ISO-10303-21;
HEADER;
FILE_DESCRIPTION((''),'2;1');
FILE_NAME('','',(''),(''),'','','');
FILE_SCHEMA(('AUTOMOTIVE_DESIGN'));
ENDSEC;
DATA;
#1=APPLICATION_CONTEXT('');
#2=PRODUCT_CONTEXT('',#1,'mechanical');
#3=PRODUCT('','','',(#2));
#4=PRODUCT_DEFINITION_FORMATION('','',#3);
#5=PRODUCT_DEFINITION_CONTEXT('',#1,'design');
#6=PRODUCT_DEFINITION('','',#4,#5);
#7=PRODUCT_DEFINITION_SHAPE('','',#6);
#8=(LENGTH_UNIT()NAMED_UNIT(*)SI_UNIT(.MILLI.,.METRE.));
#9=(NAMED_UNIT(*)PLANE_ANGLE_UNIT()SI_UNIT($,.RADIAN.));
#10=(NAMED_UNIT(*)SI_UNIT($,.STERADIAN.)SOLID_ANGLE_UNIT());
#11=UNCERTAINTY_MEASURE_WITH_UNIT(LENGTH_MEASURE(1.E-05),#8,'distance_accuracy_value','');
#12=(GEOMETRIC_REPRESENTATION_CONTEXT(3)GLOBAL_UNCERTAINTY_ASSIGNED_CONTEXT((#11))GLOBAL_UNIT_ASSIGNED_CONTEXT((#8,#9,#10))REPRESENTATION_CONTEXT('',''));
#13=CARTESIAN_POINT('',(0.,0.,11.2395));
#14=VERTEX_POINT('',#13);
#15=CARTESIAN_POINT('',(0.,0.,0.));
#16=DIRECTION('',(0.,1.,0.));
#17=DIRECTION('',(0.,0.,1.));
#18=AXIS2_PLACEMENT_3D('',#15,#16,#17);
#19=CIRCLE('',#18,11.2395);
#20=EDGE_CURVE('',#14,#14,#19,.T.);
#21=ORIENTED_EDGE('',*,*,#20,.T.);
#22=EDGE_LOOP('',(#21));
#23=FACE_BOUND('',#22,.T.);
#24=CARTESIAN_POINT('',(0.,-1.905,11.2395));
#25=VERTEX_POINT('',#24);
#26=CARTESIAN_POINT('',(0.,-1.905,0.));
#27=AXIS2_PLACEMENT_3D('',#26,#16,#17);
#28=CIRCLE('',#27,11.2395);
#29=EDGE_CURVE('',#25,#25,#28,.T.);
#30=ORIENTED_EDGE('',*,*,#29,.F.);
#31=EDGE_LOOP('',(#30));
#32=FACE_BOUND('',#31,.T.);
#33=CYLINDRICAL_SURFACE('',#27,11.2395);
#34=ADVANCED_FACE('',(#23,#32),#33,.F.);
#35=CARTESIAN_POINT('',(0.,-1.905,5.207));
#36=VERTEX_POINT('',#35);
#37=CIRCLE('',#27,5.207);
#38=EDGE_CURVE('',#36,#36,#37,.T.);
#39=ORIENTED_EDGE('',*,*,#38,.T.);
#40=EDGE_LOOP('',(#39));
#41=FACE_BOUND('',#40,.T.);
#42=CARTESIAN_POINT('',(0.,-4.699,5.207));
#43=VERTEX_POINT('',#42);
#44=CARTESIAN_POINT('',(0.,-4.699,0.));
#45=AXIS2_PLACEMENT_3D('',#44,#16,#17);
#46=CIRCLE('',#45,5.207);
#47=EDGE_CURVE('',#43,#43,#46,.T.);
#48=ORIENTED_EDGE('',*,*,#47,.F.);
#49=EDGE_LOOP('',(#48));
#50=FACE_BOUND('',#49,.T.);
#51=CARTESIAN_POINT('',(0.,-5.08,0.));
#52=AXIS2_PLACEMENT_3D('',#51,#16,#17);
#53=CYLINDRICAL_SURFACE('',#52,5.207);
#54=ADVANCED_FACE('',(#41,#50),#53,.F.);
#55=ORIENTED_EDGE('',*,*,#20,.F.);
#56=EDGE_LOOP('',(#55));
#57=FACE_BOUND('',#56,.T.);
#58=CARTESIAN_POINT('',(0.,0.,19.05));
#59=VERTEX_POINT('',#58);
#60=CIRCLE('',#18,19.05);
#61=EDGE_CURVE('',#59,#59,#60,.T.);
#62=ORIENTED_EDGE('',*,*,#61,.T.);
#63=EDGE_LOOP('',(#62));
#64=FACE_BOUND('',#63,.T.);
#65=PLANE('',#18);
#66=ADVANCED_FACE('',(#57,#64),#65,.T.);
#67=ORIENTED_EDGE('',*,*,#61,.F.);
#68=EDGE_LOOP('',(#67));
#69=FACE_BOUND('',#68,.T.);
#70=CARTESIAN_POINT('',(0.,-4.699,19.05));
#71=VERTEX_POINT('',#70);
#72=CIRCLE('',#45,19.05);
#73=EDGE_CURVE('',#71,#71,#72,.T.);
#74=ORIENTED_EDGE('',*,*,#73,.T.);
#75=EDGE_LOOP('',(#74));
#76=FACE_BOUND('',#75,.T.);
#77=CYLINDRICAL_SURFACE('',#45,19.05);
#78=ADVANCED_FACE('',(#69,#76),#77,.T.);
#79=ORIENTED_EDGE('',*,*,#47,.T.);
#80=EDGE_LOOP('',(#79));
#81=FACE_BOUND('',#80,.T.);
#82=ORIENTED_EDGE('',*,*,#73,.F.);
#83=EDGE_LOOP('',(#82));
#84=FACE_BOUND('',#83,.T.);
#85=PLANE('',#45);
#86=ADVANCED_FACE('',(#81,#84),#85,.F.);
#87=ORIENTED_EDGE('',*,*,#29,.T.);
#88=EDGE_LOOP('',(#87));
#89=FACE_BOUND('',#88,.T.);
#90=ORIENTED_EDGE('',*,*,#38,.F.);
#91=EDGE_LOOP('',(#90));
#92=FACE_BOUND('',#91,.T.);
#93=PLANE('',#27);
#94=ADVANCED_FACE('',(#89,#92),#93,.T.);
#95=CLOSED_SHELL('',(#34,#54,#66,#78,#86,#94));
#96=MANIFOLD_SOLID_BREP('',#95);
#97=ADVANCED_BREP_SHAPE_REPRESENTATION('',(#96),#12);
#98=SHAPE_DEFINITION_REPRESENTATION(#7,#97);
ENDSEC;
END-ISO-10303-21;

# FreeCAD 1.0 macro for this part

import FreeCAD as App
import Part
import Sketcher

V = App.Vector
Q = App.Units.Quantity

doc = App.newDocument("Part")
params = doc.addObject("Spreadsheet::Sheet", "Params")
for row, (alias, value) in enumerate([
    ("sketch1_diameter", "1.5 in"),
    ("pad1_length", "0.185 in"),
    ("sketch2_diameter", "0.885 in"),
    ("pocket1_length", "0.075 in"),
    ("sketch3_diameter", "0.41 in"),
    ("pocket2_length", "0.125 in"),
], start=1):
    params.set(f"A{row}", alias)
    params.set(f"B{row}", "=" + value)
    params.setAlias(f"B{row}", alias)

body = doc.addObject("PartDesign::Body", "Body")

sketch1 = doc.addObject("Sketcher::SketchObject", "Sketch")
body.addObject(sketch1)
sketch1.AttachmentSupport = (doc.XZ_Plane, [""])
sketch1.MapMode = "FlatFace"
sketch1.addGeometry(Part.Circle(V(0, 0, 0), V(0, 0, 1), 19), False)
sketch1.addConstraint(Sketcher.Constraint("Coincident", 0, 3, -1, 1))
sketch1.addConstraint(Sketcher.Constraint("Diameter", 0, Q("1.5 in")))
sketch1.setExpression("Constraints[1]", "Params.sketch1_diameter")
pad1 = doc.addObject("PartDesign::Pad", "Pad")
body.addObject(pad1)
pad1.Profile = sketch1
pad1.setExpression("Length", "Params.pad1_length")

sketch2 = doc.addObject("Sketcher::SketchObject", "Sketch001")
body.addObject(sketch2)
sketch2.AttachmentSupport = (doc.XZ_Plane, [""])
sketch2.MapMode = "FlatFace"
sketch2.addGeometry(Part.Circle(V(0, 0, 0), V(0, 0, 1), 11), False)
sketch2.addConstraint(Sketcher.Constraint("Coincident", 0, 3, -1, 1))
sketch2.addConstraint(Sketcher.Constraint("Diameter", 0, Q("0.885 in")))
sketch2.setExpression("Constraints[1]", "Params.sketch2_diameter")
pocket1 = doc.addObject("PartDesign::Pocket", "Pocket")
body.addObject(pocket1)
pocket1.Profile = sketch2
pocket1.setExpression("Length", "Params.pocket1_length")
pocket1.Reversed = True

sketch3 = doc.addObject("Sketcher::SketchObject", "Sketch002")
body.addObject(sketch3)
sketch3.AttachmentSupport = (doc.XZ_Plane, [""])
sketch3.MapMode = "FlatFace"
sketch3.AttachmentOffset = App.Placement(V(0, 0, 0.075 * 25.4), App.Rotation())
sketch3.addGeometry(Part.Circle(V(0, 0, 0), V(0, 0, 1), 5), False)
sketch3.addConstraint(Sketcher.Constraint("Coincident", 0, 3, -1, 1))
sketch3.addConstraint(Sketcher.Constraint("Diameter", 0, Q("0.41 in")))
sketch3.setExpression("Constraints[1]", "Params.sketch3_diameter")
pocket2 = doc.addObject("PartDesign::Pocket", "Pocket001")
body.addObject(pocket2)
pocket2.Profile = sketch3
pocket2.setExpression("Length", "Params.pocket2_length")
pocket2.Reversed = True

doc.recompute()
